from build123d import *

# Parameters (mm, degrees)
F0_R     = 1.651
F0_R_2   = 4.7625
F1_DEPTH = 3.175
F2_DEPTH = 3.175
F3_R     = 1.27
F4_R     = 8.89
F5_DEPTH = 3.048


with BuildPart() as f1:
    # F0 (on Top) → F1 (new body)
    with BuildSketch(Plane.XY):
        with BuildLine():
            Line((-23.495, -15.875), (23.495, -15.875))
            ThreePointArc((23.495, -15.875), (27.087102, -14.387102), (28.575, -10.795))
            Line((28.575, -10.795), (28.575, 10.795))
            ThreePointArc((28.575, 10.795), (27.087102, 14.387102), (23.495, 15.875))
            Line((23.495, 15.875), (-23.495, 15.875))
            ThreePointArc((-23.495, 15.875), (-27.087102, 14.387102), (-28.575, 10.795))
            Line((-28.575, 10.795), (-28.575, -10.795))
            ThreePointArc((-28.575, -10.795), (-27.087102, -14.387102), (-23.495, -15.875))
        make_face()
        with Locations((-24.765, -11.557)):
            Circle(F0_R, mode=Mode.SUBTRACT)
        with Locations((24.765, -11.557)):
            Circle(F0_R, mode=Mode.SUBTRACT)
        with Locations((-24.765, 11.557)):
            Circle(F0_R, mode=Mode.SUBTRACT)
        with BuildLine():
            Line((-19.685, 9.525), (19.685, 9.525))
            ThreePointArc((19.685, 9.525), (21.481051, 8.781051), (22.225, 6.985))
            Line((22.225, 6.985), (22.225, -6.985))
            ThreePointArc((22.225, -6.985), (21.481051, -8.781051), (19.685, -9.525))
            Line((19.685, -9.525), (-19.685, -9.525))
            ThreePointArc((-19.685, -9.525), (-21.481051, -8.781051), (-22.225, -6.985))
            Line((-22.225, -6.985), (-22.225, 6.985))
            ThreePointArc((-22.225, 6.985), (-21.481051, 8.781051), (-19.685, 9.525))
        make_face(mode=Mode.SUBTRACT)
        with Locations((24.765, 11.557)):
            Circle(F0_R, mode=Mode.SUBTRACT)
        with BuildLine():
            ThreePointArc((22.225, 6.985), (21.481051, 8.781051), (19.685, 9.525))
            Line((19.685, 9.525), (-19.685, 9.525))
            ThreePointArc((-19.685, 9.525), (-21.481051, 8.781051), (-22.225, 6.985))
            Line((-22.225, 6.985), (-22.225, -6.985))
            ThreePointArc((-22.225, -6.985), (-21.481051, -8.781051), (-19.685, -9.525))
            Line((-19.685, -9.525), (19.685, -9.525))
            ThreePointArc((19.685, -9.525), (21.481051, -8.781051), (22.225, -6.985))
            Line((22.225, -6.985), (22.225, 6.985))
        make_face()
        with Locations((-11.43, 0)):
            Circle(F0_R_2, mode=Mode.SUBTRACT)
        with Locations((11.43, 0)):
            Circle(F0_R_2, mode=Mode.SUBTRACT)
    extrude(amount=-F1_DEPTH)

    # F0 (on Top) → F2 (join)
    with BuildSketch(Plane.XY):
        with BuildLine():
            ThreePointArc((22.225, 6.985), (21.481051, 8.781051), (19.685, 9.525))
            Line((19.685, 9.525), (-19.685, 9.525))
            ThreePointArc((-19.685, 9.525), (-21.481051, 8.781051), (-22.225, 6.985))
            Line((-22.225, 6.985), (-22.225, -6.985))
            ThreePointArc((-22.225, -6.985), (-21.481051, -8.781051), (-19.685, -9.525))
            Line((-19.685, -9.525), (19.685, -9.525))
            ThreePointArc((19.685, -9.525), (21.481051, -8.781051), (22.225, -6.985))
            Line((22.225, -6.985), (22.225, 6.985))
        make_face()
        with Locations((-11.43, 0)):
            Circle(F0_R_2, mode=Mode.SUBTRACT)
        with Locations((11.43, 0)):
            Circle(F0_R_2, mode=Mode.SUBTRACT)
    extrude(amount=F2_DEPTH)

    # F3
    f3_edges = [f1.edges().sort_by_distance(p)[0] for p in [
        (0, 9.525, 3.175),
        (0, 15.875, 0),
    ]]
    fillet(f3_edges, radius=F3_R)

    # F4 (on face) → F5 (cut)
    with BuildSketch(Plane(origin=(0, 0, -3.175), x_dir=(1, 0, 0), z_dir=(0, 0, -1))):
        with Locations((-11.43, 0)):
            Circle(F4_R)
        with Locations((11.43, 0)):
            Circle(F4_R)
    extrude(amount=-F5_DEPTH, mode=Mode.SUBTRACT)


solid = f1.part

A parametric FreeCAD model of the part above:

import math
import FreeCAD as App
import Part
import Sketcher
Q = App.Units.Quantity


def edges_at(feature, points):
    """Names of the edges that pass closest to the given points."""
    edges = feature.Shape.Edges
    near = lambda p: min(range(len(edges)), key=lambda i: edges[i].distToShape(Part.Vertex(*p))[0])
    return sorted({f"Edge{near(p) + 1}" for p in points})

doc = App.newDocument("Part")
body = doc.addObject("PartDesign::Body", "Body")

sketch1 = body.newObject("Sketcher::SketchObject", "Sketch")
sketch1.AttachmentSupport = (doc.getObject("XY_Plane"), [""])
sketch1.MapMode = "FlatFace"
sketch1.addGeometry([
    Part.LineSegment(App.Vector(-23.5, -15.9, 0), App.Vector(23.5, -15.9, 0)),
    Part.ArcOfCircle(Part.Circle(App.Vector(23.5, -10.8, 0), App.Vector(0, 0, 1), 5.1), math.radians(-90), math.radians(0)),
    Part.LineSegment(App.Vector(28.6, -10.8, 0), App.Vector(28.6, 10.8, 0)),
    Part.ArcOfCircle(Part.Circle(App.Vector(23.5, 10.8, 0), App.Vector(0, 0, 1), 5.1), math.radians(0), math.radians(90)),
    Part.LineSegment(App.Vector(23.5, 15.9, 0), App.Vector(-23.5, 15.9, 0)),
    Part.ArcOfCircle(Part.Circle(App.Vector(-23.5, 10.8, 0), App.Vector(0, 0, 1), 5.1), math.radians(90), math.radians(180)),
    Part.LineSegment(App.Vector(-28.6, 10.8, 0), App.Vector(-28.6, -10.8, 0)),
    Part.ArcOfCircle(Part.Circle(App.Vector(-23.5, -10.8, 0), App.Vector(0, 0, 1), 5.1), math.radians(-180), math.radians(-90)),
    Part.Circle(App.Vector(-24.8, -11.6, 0), App.Vector(0, 0, 1), 1.7),
    Part.Circle(App.Vector(24.8, -11.6, 0), App.Vector(0, 0, 1), 1.7),
    Part.Circle(App.Vector(-11.4, 0, 0), App.Vector(0, 0, 1), 4.8),
    Part.Circle(App.Vector(-24.8, 11.6, 0), App.Vector(0, 0, 1), 1.7),
    Part.Circle(App.Vector(11.4, 0, 0), App.Vector(0, 0, 1), 4.8),
    Part.Circle(App.Vector(24.8, 11.6, 0), App.Vector(0, 0, 1), 1.7),
], False)
sketch1.addConstraint([
    Sketcher.Constraint("Tangent", 0, 2, 1, 1),
    Sketcher.Constraint("Tangent", 1, 2, 2, 1),
    Sketcher.Constraint("Tangent", 2, 2, 3, 1),
    Sketcher.Constraint("Tangent", 3, 2, 4, 1),
    Sketcher.Constraint("Tangent", 4, 2, 5, 1),
    Sketcher.Constraint("Tangent", 5, 2, 6, 1),
    Sketcher.Constraint("Tangent", 6, 2, 7, 1),
    Sketcher.Constraint("Tangent", 7, 2, 0, 1),
    Sketcher.Constraint("Horizontal", 0),
    Sketcher.Constraint("Vertical", 2),
    Sketcher.Constraint("Horizontal", 4),
    Sketcher.Constraint("Vertical", 6),
    Sketcher.Constraint("Equal", 1, 3),
    Sketcher.Constraint("Equal", 3, 5),
    Sketcher.Constraint("Equal", 5, 7),
    Sketcher.Constraint("Equal", 8, 9),
    Sketcher.Constraint("Equal", 9, 11),
    Sketcher.Constraint("Equal", 10, 12),
    Sketcher.Constraint("Equal", 11, 13),
    Sketcher.Constraint("Symmetric", 1, 3, 5, 3, -1, 1),
    Sketcher.Constraint("Symmetric", 9, 3, 11, 3, -1, 1),
    Sketcher.Constraint("Symmetric", 10, 3, 12, 3, -1, 1),
    Sketcher.Constraint("Symmetric", 8, 3, 13, 3, -1, 1),
    Sketcher.Constraint("Symmetric", 8, 3, 9, 3, -2),
    Sketcher.Constraint("PointOnObject", 10, 3, -1),
    Sketcher.Constraint("Radius", 1, Q("0.2000001 in")),
    Sketcher.Constraint("Diameter", 8, Q("0.13 in")),
    Sketcher.Constraint("Diameter", 10, Q("0.375 in")),
    Sketcher.Constraint("DistanceX", 0, 1, 0, 2, Q("1.85 in")),
    Sketcher.Constraint("DistanceY", 2, 1, 2, 2, Q("0.85 in")),
    Sketcher.Constraint("DistanceX", 8, 3, 1, 3, Q("1.8999999 in")),
    Sketcher.Constraint("DistanceX", 10, 3, 12, 3, Q("0.9 in")),
    Sketcher.Constraint("DistanceY", 8, 3, 7, 3, Q("0.0300001 in")),
])
pad1 = body.newObject("PartDesign::Pad", "Pad")
pad1.Profile = sketch1
pad1.Length = Q("0.125 in")
pad1.Reversed = True

sketch2 = body.newObject("Sketcher::SketchObject", "Sketch001")
sketch2.AttachmentSupport = (doc.getObject("XY_Plane"), [""])
sketch2.MapMode = "FlatFace"
sketch2.addGeometry([
    Part.ArcOfCircle(Part.Circle(App.Vector(19.7, 7, 0), App.Vector(0, 0, 1), 2.5), math.radians(0), math.radians(90)),
    Part.LineSegment(App.Vector(19.7, 9.5, 0), App.Vector(-19.7, 9.5, 0)),
    Part.ArcOfCircle(Part.Circle(App.Vector(-19.7, 7, 0), App.Vector(0, 0, 1), 2.5), math.radians(90), math.radians(180)),
    Part.LineSegment(App.Vector(-22.2, 7, 0), App.Vector(-22.2, -7, 0)),
    Part.ArcOfCircle(Part.Circle(App.Vector(-19.7, -7, 0), App.Vector(0, 0, 1), 2.5), math.radians(-180), math.radians(-90)),
    Part.LineSegment(App.Vector(-19.7, -9.5, 0), App.Vector(19.7, -9.5, 0)),
    Part.ArcOfCircle(Part.Circle(App.Vector(19.7, -7, 0), App.Vector(0, 0, 1), 2.5), math.radians(-90), math.radians(0)),
    Part.LineSegment(App.Vector(22.2, -7, 0), App.Vector(22.2, 7, 0)),
    Part.Circle(App.Vector(-11.4, 0, 0), App.Vector(0, 0, 1), 4.8),
    Part.Circle(App.Vector(11.4, 0, 0), App.Vector(0, 0, 1), 4.8),
], False)
sketch2.addConstraint([
    Sketcher.Constraint("Tangent", 0, 2, 1, 1),
    Sketcher.Constraint("Tangent", 1, 2, 2, 1),
    Sketcher.Constraint("Tangent", 2, 2, 3, 1),
    Sketcher.Constraint("Tangent", 3, 2, 4, 1),
    Sketcher.Constraint("Tangent", 4, 2, 5, 1),
    Sketcher.Constraint("Tangent", 5, 2, 6, 1),
    Sketcher.Constraint("Tangent", 6, 2, 7, 1),
    Sketcher.Constraint("Tangent", 7, 2, 0, 1),
    Sketcher.Constraint("Horizontal", 1),
    Sketcher.Constraint("Vertical", 3),
    Sketcher.Constraint("Horizontal", 5),
    Sketcher.Constraint("Vertical", 7),
    Sketcher.Constraint("Equal", 0, 2),
    Sketcher.Constraint("Equal", 2, 4),
    Sketcher.Constraint("Equal", 4, 6),
    Sketcher.Constraint("Equal", 8, 9),
    Sketcher.Constraint("Symmetric", 0, 3, 4, 3, -1, 1),
    Sketcher.Constraint("Symmetric", 8, 3, 9, 3, -1, 1),
    Sketcher.Constraint("PointOnObject", 8, 3, -1),
    Sketcher.Constraint("Radius", 0, Q("0.1 in")),
    Sketcher.Constraint("Diameter", 8, Q("0.375 in")),
    Sketcher.Constraint("DistanceX", 1, 2, 1, 1, Q("1.55 in")),
    Sketcher.Constraint("DistanceY", 3, 2, 3, 1, Q("0.55 in")),
    Sketcher.Constraint("DistanceX", 8, 3, 9, 3, Q("0.9 in")),
])
pad2 = body.newObject("PartDesign::Pad", "Pad001")
pad2.Profile = sketch2
pad2.Length = Q("0.125 in")
doc.recompute()

fillet = body.newObject("PartDesign::Fillet", "Fillet")
fillet.Base = (pad2, edges_at(pad2, [(0, 9.525, 3.175), (0, 15.875, 0)]))
fillet.Radius = Q("0.05 in")

sketch3 = body.newObject("Sketcher::SketchObject", "Sketch002")
sketch3.AttachmentSupport = (doc.getObject("XY_Plane"), [""])
sketch3.MapMode = "FlatFace"
sketch3.AttachmentOffset = App.Placement(App.Vector(0, 0, -0.125 * 25.4), App.Rotation())
sketch3.addGeometry([
    Part.Circle(App.Vector(-11, 0, 0), App.Vector(0, 0, 1), 9),
    Part.Circle(App.Vector(11, 0, 0), App.Vector(0, 0, 1), 9),
], False)
sketch3.addConstraint([
    Sketcher.Constraint("Equal", 0, 1),
    Sketcher.Constraint("Symmetric", 0, 3, 1, 3, -1, 1),
    Sketcher.Constraint("PointOnObject", 0, 3, -1),
    Sketcher.Constraint("Diameter", 0, Q("0.7 in")),
    Sketcher.Constraint("DistanceX", 0, 3, 1, 3, Q("0.9 in")),
])
pocket1 = body.newObject("PartDesign::Pocket", "Pocket")
pocket1.Profile = sketch3
pocket1.Length = Q("0.12 in")
pocket1.Reversed = True

doc.recompute()
